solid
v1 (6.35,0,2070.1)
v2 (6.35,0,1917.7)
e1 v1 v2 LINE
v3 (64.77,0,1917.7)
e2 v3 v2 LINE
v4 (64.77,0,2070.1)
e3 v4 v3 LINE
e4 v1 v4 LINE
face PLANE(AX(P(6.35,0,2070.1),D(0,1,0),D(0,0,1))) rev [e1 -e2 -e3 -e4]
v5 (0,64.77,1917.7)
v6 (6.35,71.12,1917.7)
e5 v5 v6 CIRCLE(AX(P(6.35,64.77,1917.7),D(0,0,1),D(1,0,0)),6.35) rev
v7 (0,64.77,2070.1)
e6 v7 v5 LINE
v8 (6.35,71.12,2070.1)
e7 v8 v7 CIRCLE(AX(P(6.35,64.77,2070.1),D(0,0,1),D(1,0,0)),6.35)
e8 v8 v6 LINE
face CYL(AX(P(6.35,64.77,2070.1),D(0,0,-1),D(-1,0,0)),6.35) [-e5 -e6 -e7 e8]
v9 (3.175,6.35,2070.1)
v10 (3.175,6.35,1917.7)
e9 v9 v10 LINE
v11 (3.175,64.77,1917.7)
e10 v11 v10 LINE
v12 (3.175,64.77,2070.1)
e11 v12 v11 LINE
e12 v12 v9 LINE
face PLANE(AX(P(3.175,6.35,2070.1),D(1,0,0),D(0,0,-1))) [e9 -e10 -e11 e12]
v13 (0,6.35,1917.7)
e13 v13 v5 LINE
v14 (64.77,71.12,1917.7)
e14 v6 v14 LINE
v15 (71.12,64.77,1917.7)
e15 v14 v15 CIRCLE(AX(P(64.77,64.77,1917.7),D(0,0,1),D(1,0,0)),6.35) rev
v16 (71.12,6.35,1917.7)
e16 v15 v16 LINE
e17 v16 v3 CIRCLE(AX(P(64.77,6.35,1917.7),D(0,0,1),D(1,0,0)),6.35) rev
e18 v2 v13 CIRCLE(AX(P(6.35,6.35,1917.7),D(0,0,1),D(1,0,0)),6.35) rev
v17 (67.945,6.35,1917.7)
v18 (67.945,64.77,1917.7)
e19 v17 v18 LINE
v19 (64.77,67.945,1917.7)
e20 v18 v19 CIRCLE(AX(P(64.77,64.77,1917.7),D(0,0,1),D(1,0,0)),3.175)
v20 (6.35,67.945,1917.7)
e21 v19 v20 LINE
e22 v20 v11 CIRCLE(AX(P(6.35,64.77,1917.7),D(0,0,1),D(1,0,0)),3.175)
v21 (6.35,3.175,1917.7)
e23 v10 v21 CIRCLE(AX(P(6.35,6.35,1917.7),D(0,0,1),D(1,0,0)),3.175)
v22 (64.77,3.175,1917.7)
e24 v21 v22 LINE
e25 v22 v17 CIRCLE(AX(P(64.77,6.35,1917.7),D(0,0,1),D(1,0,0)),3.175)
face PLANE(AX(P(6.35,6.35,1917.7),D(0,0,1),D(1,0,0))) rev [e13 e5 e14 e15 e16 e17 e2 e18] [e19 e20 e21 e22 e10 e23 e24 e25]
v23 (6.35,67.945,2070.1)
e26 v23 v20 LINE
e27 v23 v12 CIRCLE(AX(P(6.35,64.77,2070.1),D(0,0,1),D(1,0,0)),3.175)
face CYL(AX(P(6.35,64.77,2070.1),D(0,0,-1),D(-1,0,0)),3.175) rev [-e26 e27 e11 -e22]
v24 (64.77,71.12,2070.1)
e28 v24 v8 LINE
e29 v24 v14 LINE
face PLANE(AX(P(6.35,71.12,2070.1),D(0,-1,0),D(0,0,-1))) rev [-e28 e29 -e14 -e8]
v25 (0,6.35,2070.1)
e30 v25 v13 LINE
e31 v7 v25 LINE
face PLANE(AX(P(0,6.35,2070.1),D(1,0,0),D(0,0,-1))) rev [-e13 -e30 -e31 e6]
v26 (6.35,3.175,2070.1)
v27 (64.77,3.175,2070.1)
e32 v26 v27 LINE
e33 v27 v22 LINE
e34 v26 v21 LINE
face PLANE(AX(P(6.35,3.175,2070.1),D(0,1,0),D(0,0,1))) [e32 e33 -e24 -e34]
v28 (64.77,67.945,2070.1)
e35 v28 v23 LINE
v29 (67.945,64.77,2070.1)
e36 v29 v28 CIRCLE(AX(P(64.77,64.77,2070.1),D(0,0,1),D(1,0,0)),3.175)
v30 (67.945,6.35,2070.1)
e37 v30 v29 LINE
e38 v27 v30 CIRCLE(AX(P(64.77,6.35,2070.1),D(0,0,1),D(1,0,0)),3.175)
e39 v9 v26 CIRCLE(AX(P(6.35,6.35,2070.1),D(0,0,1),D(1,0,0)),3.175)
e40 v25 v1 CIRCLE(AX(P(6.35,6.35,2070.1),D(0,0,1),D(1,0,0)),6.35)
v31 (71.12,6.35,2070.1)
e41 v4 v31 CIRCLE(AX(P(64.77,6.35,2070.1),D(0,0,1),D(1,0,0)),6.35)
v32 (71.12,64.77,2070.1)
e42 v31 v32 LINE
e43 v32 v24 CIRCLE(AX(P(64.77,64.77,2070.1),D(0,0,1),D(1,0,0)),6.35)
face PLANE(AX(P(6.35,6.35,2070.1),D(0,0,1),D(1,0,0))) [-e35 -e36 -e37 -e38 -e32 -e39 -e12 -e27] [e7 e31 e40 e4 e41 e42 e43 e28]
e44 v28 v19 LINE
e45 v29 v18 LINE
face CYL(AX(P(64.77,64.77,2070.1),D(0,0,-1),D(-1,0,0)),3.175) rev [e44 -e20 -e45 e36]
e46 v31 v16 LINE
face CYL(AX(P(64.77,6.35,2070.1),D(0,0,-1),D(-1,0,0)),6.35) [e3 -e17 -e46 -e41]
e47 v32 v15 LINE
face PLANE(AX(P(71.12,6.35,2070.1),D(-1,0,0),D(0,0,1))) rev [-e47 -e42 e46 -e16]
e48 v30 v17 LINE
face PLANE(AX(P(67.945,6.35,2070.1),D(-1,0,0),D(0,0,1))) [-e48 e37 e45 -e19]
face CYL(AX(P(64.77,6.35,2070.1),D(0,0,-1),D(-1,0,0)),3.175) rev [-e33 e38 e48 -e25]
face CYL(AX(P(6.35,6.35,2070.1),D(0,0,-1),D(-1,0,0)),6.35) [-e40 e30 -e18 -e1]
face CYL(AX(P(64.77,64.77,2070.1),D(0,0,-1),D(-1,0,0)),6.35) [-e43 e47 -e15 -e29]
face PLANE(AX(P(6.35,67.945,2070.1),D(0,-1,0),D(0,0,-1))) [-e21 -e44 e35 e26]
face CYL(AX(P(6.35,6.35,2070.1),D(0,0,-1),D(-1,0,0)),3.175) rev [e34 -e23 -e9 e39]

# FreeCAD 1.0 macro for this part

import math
import FreeCAD as App
import Part
import Sketcher
Q = App.Units.Quantity

doc = App.newDocument("Part")
params = doc.addObject("Spreadsheet::Sheet", "Params")
for row, (alias, value) in enumerate([
    ("sketch1_radius", "0.25 in"),
    ("sketch1_width", "2.3 in"),
    ("sketch1_radius2", "0.125 in"),
    ("pad1_length", "81.5 in"),
    ("sketch2_diameter", "0.5 in"),
    ("sketch4_diameter", "0.15 in"),
    ("sketch5_diameter", "0.15 in"),
    ("sketch6_diameter", "0.15 in"),
    ("sketch7_diameter", "0.15 in"),
    ("sketch8_diameter", "0.15 in"),
    ("sketch9_diameter", "0.15 in"),
    ("sketch10_diameter", "0.15 in"),
    ("sketch11_diameter", "0.15 in"),
    ("sketch12_radius", "0.25 in"),
    ("sketch12_width", "2.3 in"),
    ("pocket11_length", "75.5 in"),
], start=1):
    params.set(f"A{row}", alias)
    params.set(f"B{row}", "=" + value)
    params.setAlias(f"B{row}", alias)

body = doc.addObject("PartDesign::Body", "Body")

# Sketch on XY plane
sketch1 = body.newObject("Sketcher::SketchObject", "Sketch")
sketch1.AttachmentSupport = (doc.getObject("XY_Plane"), [""])
sketch1.MapMode = "FlatFace"
sketch1.addGeometry(Part.LineSegment(App.Vector(6.35, 0, 0), App.Vector(64.77, 0, 0)), False)
sketch1.addGeometry(Part.ArcOfCircle(Part.Circle(App.Vector(64.77, 6.35, 0), App.Vector(0, 0, 1), 6.35), math.radians(-90), math.radians(0)), False)
sketch1.addGeometry(Part.LineSegment(App.Vector(71.12, 6.35, 0), App.Vector(71.12, 64.77, 0)), False)
sketch1.addGeometry(Part.ArcOfCircle(Part.Circle(App.Vector(64.77, 64.77, 0), App.Vector(0, 0, 1), 6.35), math.radians(0), math.radians(90)), False)
sketch1.addGeometry(Part.LineSegment(App.Vector(64.77, 71.12, 0), App.Vector(6.35, 71.12, 0)), False)
sketch1.addGeometry(Part.ArcOfCircle(Part.Circle(App.Vector(6.35, 64.77, 0), App.Vector(0, 0, 1), 6.35), math.radians(90), math.radians(180)), False)
sketch1.addGeometry(Part.LineSegment(App.Vector(0, 64.77, 0), App.Vector(0, 6.35, 0)), False)
sketch1.addGeometry(Part.ArcOfCircle(Part.Circle(App.Vector(6.35, 6.35, 0), App.Vector(0, 0, 1), 6.35), math.radians(180), math.radians(270)), False)
sketch1.addGeometry(Part.LineSegment(App.Vector(64.77, 3.175, 0), App.Vector(6.35, 3.175, 0)), False)
sketch1.addGeometry(Part.ArcOfCircle(Part.Circle(App.Vector(6.35, 6.35, 0), App.Vector(0, 0, 1), 3.175), math.radians(-180), math.radians(-90)), False)
sketch1.addGeometry(Part.LineSegment(App.Vector(3.175, 6.35, 0), App.Vector(3.175, 64.77, 0)), False)
sketch1.addGeometry(Part.ArcOfCircle(Part.Circle(App.Vector(6.35, 64.77, 0), App.Vector(0, 0, 1), 3.175), math.radians(90), math.radians(180)), False)
sketch1.addGeometry(Part.LineSegment(App.Vector(6.35, 67.945, 0), App.Vector(64.77, 67.945, 0)), False)
sketch1.addGeometry(Part.ArcOfCircle(Part.Circle(App.Vector(64.77, 64.77, 0), App.Vector(0, 0, 1), 3.175), math.radians(0), math.radians(90)), False)
sketch1.addGeometry(Part.LineSegment(App.Vector(67.945, 64.77, 0), App.Vector(67.945, 6.35, 0)), False)
sketch1.addGeometry(Part.ArcOfCircle(Part.Circle(App.Vector(64.77, 6.35, 0), App.Vector(0, 0, 1), 3.175), math.radians(-90), math.radians(0)), False)
sketch1.addConstraint(Sketcher.Constraint("Tangent", 0, 2, 1, 1))
sketch1.addConstraint(Sketcher.Constraint("Tangent", 1, 2, 2, 1))
sketch1.addConstraint(Sketcher.Constraint("Tangent", 2, 2, 3, 1))
sketch1.addConstraint(Sketcher.Constraint("Tangent", 3, 2, 4, 1))
sketch1.addConstraint(Sketcher.Constraint("Tangent", 4, 2, 5, 1))
sketch1.addConstraint(Sketcher.Constraint("Tangent", 5, 2, 6, 1))
sketch1.addConstraint(Sketcher.Constraint("Tangent", 6, 2, 7, 1))
sketch1.addConstraint(Sketcher.Constraint("Tangent", 7, 2, 0, 1))
sketch1.addConstraint(Sketcher.Constraint("Tangent", 8, 2, 9, 2))
sketch1.addConstraint(Sketcher.Constraint("Tangent", 9, 1, 10, 1))
sketch1.addConstraint(Sketcher.Constraint("Tangent", 10, 2, 11, 2))
sketch1.addConstraint(Sketcher.Constraint("Tangent", 11, 1, 12, 1))
sketch1.addConstraint(Sketcher.Constraint("Tangent", 12, 2, 13, 2))
sketch1.addConstraint(Sketcher.Constraint("Tangent", 13, 1, 14, 1))
sketch1.addConstraint(Sketcher.Constraint("Tangent", 14, 2, 15, 2))
sketch1.addConstraint(Sketcher.Constraint("Tangent", 15, 1, 8, 1))
sketch1.addConstraint(Sketcher.Constraint("Horizontal", 0))
sketch1.addConstraint(Sketcher.Constraint("Vertical", 2))
sketch1.addConstraint(Sketcher.Constraint("Horizontal", 4))
sketch1.addConstraint(Sketcher.Constraint("Vertical", 6))
sketch1.addConstraint(Sketcher.Constraint("Horizontal", 8))
sketch1.addConstraint(Sketcher.Constraint("Vertical", 10))
sketch1.addConstraint(Sketcher.Constraint("Horizontal", 12))
sketch1.addConstraint(Sketcher.Constraint("Vertical", 14))
sketch1.addConstraint(Sketcher.Constraint("Coincident", 9, 3, 7, 3))
sketch1.addConstraint(Sketcher.Constraint("Coincident", 11, 3, 5, 3))
sketch1.addConstraint(Sketcher.Constraint("Coincident", 13, 3, 3, 3))
sketch1.addConstraint(Sketcher.Constraint("Equal", 1, 3))
sketch1.addConstraint(Sketcher.Constraint("Equal", 3, 5))
sketch1.addConstraint(Sketcher.Constraint("Equal", 5, 7))
sketch1.addConstraint(Sketcher.Constraint("Equal", 13, 15))
sketch1.addConstraint(Sketcher.Constraint("PointOnObject", 0, 2, -1))
sketch1.addConstraint(Sketcher.Constraint("PointOnObject", 5, 2, -2))
sketch1.addConstraint(Sketcher.Constraint("Equal", 12, 2))
sketch1.addConstraint(Sketcher.Constraint("Radius", 1, Q("0.25 in")))
sketch1.addConstraint(Sketcher.Constraint("DistanceX", 0, 1, 0, 2, Q("2.3 in")))
sketch1.addConstraint(Sketcher.Constraint("Radius", 9, Q("0.125 in")))
sketch1.setExpression("Constraints[34]", "Params.sketch1_radius")
sketch1.setExpression("Constraints[35]", "Params.sketch1_width")
sketch1.setExpression("Constraints[36]", "Params.sketch1_radius2")
pad1 = body.newObject("PartDesign::Pad", "Pad")
pad1.Profile = sketch1
pad1.setExpression("Length", "Params.pad1_length")

# Sketch on XZ plane
sketch2 = body.newObject("Sketcher::SketchObject", "Sketch001")
sketch2.AttachmentSupport = (doc.getObject("XZ_Plane"), [""])
sketch2.MapMode = "FlatFace"
sketch2.addGeometry(Part.Circle(App.Vector(35.56, 101.6, 0), App.Vector(0, 0, 1), 6.35), False)
sketch2.addGeometry(Part.Circle(App.Vector(35.56, 279.4, 0), App.Vector(0, 0, 1), 6.35), False)
sketch2.addConstraint(Sketcher.Constraint("Equal", 0, 1))
sketch2.addConstraint(Sketcher.Constraint("Vertical", 0, 3, 1, 3))
sketch2.addConstraint(Sketcher.Constraint("Diameter", 0, Q("0.5 in")))
sketch2.addConstraint(Sketcher.Constraint("DistanceY", -1, 1, 0, 3, Q("4 in")))
sketch2.addConstraint(Sketcher.Constraint("DistanceY", -1, 1, 1, 3, Q("11 in")))
sketch2.addConstraint(Sketcher.Constraint("DistanceX", -1, 1, 0, 3, Q("1.4 in")))
sketch2.setExpression("Constraints[2]", "Params.sketch2_diameter")
pocket1 = body.newObject("PartDesign::Pocket", "Pocket")
pocket1.Profile = sketch2
pocket1.Type = "ThroughAll"

# Sketch on YZ plane
sketch3 = body.newObject("Sketcher::SketchObject", "Sketch002")
sketch3.AttachmentSupport = (doc.getObject("YZ_Plane"), [""])
sketch3.MapMode = "FlatFace"
sketch3.addGeometry(Part.Circle(App.Vector(53.975, 12.7, 0), App.Vector(0, 0, 1), 3.274297), False)
sketch3.addGeometry(Part.Circle(App.Vector(17.145, 12.7, 0), App.Vector(0, 0, 1), 3.274297), False)
sketch3.addGeometry(Part.Circle(App.Vector(17.145, 63.5, 0), App.Vector(0, 0, 1), 3.274297), False)
sketch3.addGeometry(Part.Circle(App.Vector(53.975, 63.5, 0), App.Vector(0, 0, 1), 3.274297), False)
sketch3.addConstraint(Sketcher.Constraint("Equal", 0, 1))
sketch3.addConstraint(Sketcher.Constraint("Equal", 1, 2))
sketch3.addConstraint(Sketcher.Constraint("Equal", 2, 3))
sketch3.addConstraint(Sketcher.Constraint("Horizontal", 0, 3, 1, 3))
sketch3.addConstraint(Sketcher.Constraint("Horizontal", 2, 3, 3, 3))
sketch3.addConstraint(Sketcher.Constraint("Vertical", 1, 3, 2, 3))
sketch3.addConstraint(Sketcher.Constraint("Vertical", 0, 3, 3, 3))
sketch3.addConstraint(Sketcher.Constraint("DistanceY", 1, 3, 2, 3, Q("2 in")))
sketch3.addConstraint(Sketcher.Constraint("DistanceY", -1, 1, 0, 3, Q("0.5 in")))
sketch3.addConstraint(Sketcher.Constraint("DistanceX", 1, 3, 0, 3, Q("1.45 in")))
sketch3.addConstraint(Sketcher.Constraint("DistanceX", -1, 1, 0, 3, Q("2.125 in")))
sketch3.addConstraint(Sketcher.Constraint("Diameter", 0, 6.548594))
pocket2 = body.newObject("PartDesign::Pocket", "Pocket001")
pocket2.Profile = sketch3
pocket2.Type = "ThroughAll"
pocket2.Reversed = True

# Sketch on XZ plane
sketch4 = body.newObject("Sketcher::SketchObject", "Sketch003")
sketch4.AttachmentSupport = (doc.getObject("XZ_Plane"), [""])
sketch4.MapMode = "FlatFace"
sketch4.AttachmentOffset = App.Placement(App.Vector(0, 0, -2.8 * 25.4), App.Rotation())
sketch4.addGeometry(Part.Circle(App.Vector(13.335, 1508.125, 0), App.Vector(0, 0, 1), 1.905), False)
sketch4.addConstraint(Sketcher.Constraint("Diameter", 0, Q("0.15 in")))
sketch4.addConstraint(Sketcher.Constraint("DistanceX", -1, 1, 0, 3, Q("0.525 in")))
sketch4.addConstraint(Sketcher.Constraint("DistanceY", -1, 1, 0, 3, Q("59.375 in")))
sketch4.setExpression("Constraints[0]", "Params.sketch4_diameter")
pocket3 = body.newObject("PartDesign::Pocket", "Pocket002")
pocket3.Profile = sketch4
pocket3.Type = "UpToFirst"
pocket3.Reversed = True

# Sketch on XZ plane
sketch5 = body.newObject("Sketcher::SketchObject", "Sketch004")
sketch5.AttachmentSupport = (doc.getObject("XZ_Plane"), [""])
sketch5.MapMode = "FlatFace"
sketch5.AttachmentOffset = App.Placement(App.Vector(0, 0, -2.8 * 25.4), App.Rotation())
sketch5.addGeometry(Part.Circle(App.Vector(57.785, 1508.125, 0), App.Vector(0, 0, 1), 1.905), False)
sketch5.addConstraint(Sketcher.Constraint("Diameter", 0, Q("0.15 in")))
sketch5.addConstraint(Sketcher.Constraint("DistanceX", -1, 1, 0, 3, Q("2.275 in")))
sketch5.addConstraint(Sketcher.Constraint("DistanceY", -1, 1, 0, 3, Q("59.375 in")))
sketch5.setExpression("Constraints[0]", "Params.sketch5_diameter")
pocket4 = body.newObject("PartDesign::Pocket", "Pocket003")
pocket4.Profile = sketch5
pocket4.Type = "UpToFirst"
pocket4.Reversed = True

# Sketch on XZ plane
sketch6 = body.newObject("Sketcher::SketchObject", "Sketch005")
sketch6.AttachmentSupport = (doc.getObject("XZ_Plane"), [""])
sketch6.MapMode = "FlatFace"
sketch6.AttachmentOffset = App.Placement(App.Vector(0, 0, -2.8 * 25.4), App.Rotation())
sketch6.addGeometry(Part.Circle(App.Vector(57.785, 1565.275, 0), App.Vector(0, 0, 1), 1.905), False)
sketch6.addConstraint(Sketcher.Constraint("Diameter", 0, Q("0.15 in")))
sketch6.addConstraint(Sketcher.Constraint("DistanceX", -1, 1, 0, 3, Q("2.275 in")))
sketch6.addConstraint(Sketcher.Constraint("DistanceY", -1, 1, 0, 3, Q("61.625 in")))
sketch6.setExpression("Constraints[0]", "Params.sketch6_diameter")
pocket5 = body.newObject("PartDesign::Pocket", "Pocket004")
pocket5.Profile = sketch6
pocket5.Type = "UpToFirst"
pocket5.Reversed = True

# Sketch on XZ plane
sketch7 = body.newObject("Sketcher::SketchObject", "Sketch006")
sketch7.AttachmentSupport = (doc.getObject("XZ_Plane"), [""])
sketch7.MapMode = "FlatFace"
sketch7.AttachmentOffset = App.Placement(App.Vector(0, 0, -2.8 * 25.4), App.Rotation())
sketch7.addGeometry(Part.Circle(App.Vector(13.335, 1565.275, 0), App.Vector(0, 0, 1), 1.905), False)
sketch7.addConstraint(Sketcher.Constraint("Diameter", 0, Q("0.15 in")))
sketch7.addConstraint(Sketcher.Constraint("DistanceX", -1, 1, 0, 3, Q("0.525 in")))
sketch7.addConstraint(Sketcher.Constraint("DistanceY", -1, 1, 0, 3, Q("61.625 in")))
sketch7.setExpression("Constraints[0]", "Params.sketch7_diameter")
pocket6 = body.newObject("PartDesign::Pocket", "Pocket005")
pocket6.Profile = sketch7
pocket6.Type = "UpToFirst"
pocket6.Reversed = True

# Sketch on XZ plane
sketch8 = body.newObject("Sketcher::SketchObject", "Sketch007")
sketch8.AttachmentSupport = (doc.getObject("XZ_Plane"), [""])
sketch8.MapMode = "FlatFace"
sketch8.AttachmentOffset = App.Placement(App.Vector(0, 0, -2.8 * 25.4), App.Rotation())
sketch8.addGeometry(Part.Circle(App.Vector(13.335, 1133.475, 0), App.Vector(0, 0, 1), 1.905), False)
sketch8.addConstraint(Sketcher.Constraint("Diameter", 0, Q("0.15 in")))
sketch8.addConstraint(Sketcher.Constraint("DistanceX", -1, 1, 0, 3, Q("0.525 in")))
sketch8.addConstraint(Sketcher.Constraint("DistanceY", -1, 1, 0, 3, Q("44.625 in")))
sketch8.setExpression("Constraints[0]", "Params.sketch8_diameter")
pocket7 = body.newObject("PartDesign::Pocket", "Pocket006")
pocket7.Profile = sketch8
pocket7.Type = "UpToFirst"
pocket7.Reversed = True

# Sketch on XZ plane
sketch9 = body.newObject("Sketcher::SketchObject", "Sketch008")
sketch9.AttachmentSupport = (doc.getObject("XZ_Plane"), [""])
sketch9.MapMode = "FlatFace"
sketch9.AttachmentOffset = App.Placement(App.Vector(0, 0, -2.8 * 25.4), App.Rotation())
sketch9.addGeometry(Part.Circle(App.Vector(57.785, 1133.475, 0), App.Vector(0, 0, 1), 1.905), False)
sketch9.addConstraint(Sketcher.Constraint("Diameter", 0, Q("0.15 in")))
sketch9.addConstraint(Sketcher.Constraint("DistanceX", -1, 1, 0, 3, Q("2.275 in")))
sketch9.addConstraint(Sketcher.Constraint("DistanceY", -1, 1, 0, 3, Q("44.625 in")))
sketch9.setExpression("Constraints[0]", "Params.sketch9_diameter")
pocket8 = body.newObject("PartDesign::Pocket", "Pocket007")
pocket8.Profile = sketch9
pocket8.Type = "UpToFirst"
pocket8.Reversed = True

# Sketch on XZ plane
sketch10 = body.newObject("Sketcher::SketchObject", "Sketch009")
sketch10.AttachmentSupport = (doc.getObject("XZ_Plane"), [""])
sketch10.MapMode = "FlatFace"
sketch10.AttachmentOffset = App.Placement(App.Vector(0, 0, -2.8 * 25.4), App.Rotation())
sketch10.addGeometry(Part.Circle(App.Vector(57.785, 1190.625, 0), App.Vector(0, 0, 1), 1.905), False)
sketch10.addConstraint(Sketcher.Constraint("Diameter", 0, Q("0.15 in")))
sketch10.addConstraint(Sketcher.Constraint("DistanceX", -1, 1, 0, 3, Q("2.275 in")))
sketch10.addConstraint(Sketcher.Constraint("DistanceY", -1, 1, 0, 3, Q("46.875 in")))
sketch10.setExpression("Constraints[0]", "Params.sketch10_diameter")
pocket9 = body.newObject("PartDesign::Pocket", "Pocket008")
pocket9.Profile = sketch10
pocket9.Type = "UpToFirst"
pocket9.Reversed = True

# Sketch on XZ plane
sketch11 = body.newObject("Sketcher::SketchObject", "Sketch010")
sketch11.AttachmentSupport = (doc.getObject("XZ_Plane"), [""])
sketch11.MapMode = "FlatFace"
sketch11.AttachmentOffset = App.Placement(App.Vector(0, 0, -2.8 * 25.4), App.Rotation())
sketch11.addGeometry(Part.Circle(App.Vector(13.335, 1190.625, 0), App.Vector(0, 0, 1), 1.905), False)
sketch11.addConstraint(Sketcher.Constraint("Diameter", 0, Q("0.15 in")))
sketch11.addConstraint(Sketcher.Constraint("DistanceX", -1, 1, 0, 3, Q("0.525 in")))
sketch11.addConstraint(Sketcher.Constraint("DistanceY", -1, 1, 0, 3, Q("46.875 in")))
sketch11.setExpression("Constraints[0]", "Params.sketch11_diameter")
pocket10 = body.newObject("PartDesign::Pocket", "Pocket009")
pocket10.Profile = sketch11
pocket10.Type = "UpToFirst"
pocket10.Reversed = True

# Sketch on XY plane
sketch12 = body.newObject("Sketcher::SketchObject", "Sketch011")
sketch12.AttachmentSupport = (doc.getObject("XY_Plane"), [""])
sketch12.MapMode = "FlatFace"
sketch12.addGeometry(Part.LineSegment(App.Vector(0, 6.35, 0), App.Vector(0, 64.77, 0)), False)
sketch12.addGeometry(Part.ArcOfCircle(Part.Circle(App.Vector(6.35, 64.77, 0), App.Vector(0, 0, 1), 6.35), math.radians(90), math.radians(180)), False)
sketch12.addGeometry(Part.LineSegment(App.Vector(6.35, 71.12, 0), App.Vector(64.77, 71.12, 0)), False)
sketch12.addGeometry(Part.ArcOfCircle(Part.Circle(App.Vector(64.77, 64.77, 0), App.Vector(0, 0, 1), 6.35), math.radians(0), math.radians(90)), False)
sketch12.addGeometry(Part.LineSegment(App.Vector(71.12, 64.77, 0), App.Vector(71.12, 6.35, 0)), False)
sketch12.addGeometry(Part.ArcOfCircle(Part.Circle(App.Vector(64.77, 6.35, 0), App.Vector(0, 0, 1), 6.35), math.radians(-90), math.radians(0)), False)
sketch12.addGeometry(Part.LineSegment(App.Vector(64.77, 0, 0), App.Vector(6.35, 0, 0)), False)
sketch12.addGeometry(Part.ArcOfCircle(Part.Circle(App.Vector(6.35, 6.35, 0), App.Vector(0, 0, 1), 6.35), math.radians(180), math.radians(270)), False)
sketch12.addConstraint(Sketcher.Constraint("Tangent", 0, 2, 1, 2))
sketch12.addConstraint(Sketcher.Constraint("Tangent", 1, 1, 2, 1))
sketch12.addConstraint(Sketcher.Constraint("Tangent", 2, 2, 3, 2))
sketch12.addConstraint(Sketcher.Constraint("Tangent", 3, 1, 4, 1))
sketch12.addConstraint(Sketcher.Constraint("Tangent", 4, 2, 5, 2))
sketch12.addConstraint(Sketcher.Constraint("Tangent", 5, 1, 6, 1))
sketch12.addConstraint(Sketcher.Constraint("Tangent", 6, 2, 7, 2))
sketch12.addConstraint(Sketcher.Constraint("Tangent", 7, 1, 0, 1))
sketch12.addConstraint(Sketcher.Constraint("Vertical", 0))
sketch12.addConstraint(Sketcher.Constraint("Horizontal", 2))
sketch12.addConstraint(Sketcher.Constraint("Vertical", 4))
sketch12.addConstraint(Sketcher.Constraint("Horizontal", 6))
sketch12.addConstraint(Sketcher.Constraint("Equal", 1, 3))
sketch12.addConstraint(Sketcher.Constraint("Equal", 3, 5))
sketch12.addConstraint(Sketcher.Constraint("Equal", 5, 7))
sketch12.addConstraint(Sketcher.Constraint("PointOnObject", 0, 2, -2))
sketch12.addConstraint(Sketcher.Constraint("PointOnObject", 5, 1, -1))
sketch12.addConstraint(Sketcher.Constraint("Equal", 6, 0))
sketch12.addConstraint(Sketcher.Constraint("Radius", 1, Q("0.25 in")))
sketch12.addConstraint(Sketcher.Constraint("DistanceX", 2, 1, 2, 2, Q("2.3 in")))
sketch12.setExpression("Constraints[18]", "Params.sketch12_radius")
sketch12.setExpression("Constraints[19]", "Params.sketch12_width")
pocket11 = body.newObject("PartDesign::Pocket", "Pocket010")
pocket11.Profile = sketch12
pocket11.setExpression("Length", "Params.pocket11_length")
pocket11.Reversed = True

doc.recompute()
